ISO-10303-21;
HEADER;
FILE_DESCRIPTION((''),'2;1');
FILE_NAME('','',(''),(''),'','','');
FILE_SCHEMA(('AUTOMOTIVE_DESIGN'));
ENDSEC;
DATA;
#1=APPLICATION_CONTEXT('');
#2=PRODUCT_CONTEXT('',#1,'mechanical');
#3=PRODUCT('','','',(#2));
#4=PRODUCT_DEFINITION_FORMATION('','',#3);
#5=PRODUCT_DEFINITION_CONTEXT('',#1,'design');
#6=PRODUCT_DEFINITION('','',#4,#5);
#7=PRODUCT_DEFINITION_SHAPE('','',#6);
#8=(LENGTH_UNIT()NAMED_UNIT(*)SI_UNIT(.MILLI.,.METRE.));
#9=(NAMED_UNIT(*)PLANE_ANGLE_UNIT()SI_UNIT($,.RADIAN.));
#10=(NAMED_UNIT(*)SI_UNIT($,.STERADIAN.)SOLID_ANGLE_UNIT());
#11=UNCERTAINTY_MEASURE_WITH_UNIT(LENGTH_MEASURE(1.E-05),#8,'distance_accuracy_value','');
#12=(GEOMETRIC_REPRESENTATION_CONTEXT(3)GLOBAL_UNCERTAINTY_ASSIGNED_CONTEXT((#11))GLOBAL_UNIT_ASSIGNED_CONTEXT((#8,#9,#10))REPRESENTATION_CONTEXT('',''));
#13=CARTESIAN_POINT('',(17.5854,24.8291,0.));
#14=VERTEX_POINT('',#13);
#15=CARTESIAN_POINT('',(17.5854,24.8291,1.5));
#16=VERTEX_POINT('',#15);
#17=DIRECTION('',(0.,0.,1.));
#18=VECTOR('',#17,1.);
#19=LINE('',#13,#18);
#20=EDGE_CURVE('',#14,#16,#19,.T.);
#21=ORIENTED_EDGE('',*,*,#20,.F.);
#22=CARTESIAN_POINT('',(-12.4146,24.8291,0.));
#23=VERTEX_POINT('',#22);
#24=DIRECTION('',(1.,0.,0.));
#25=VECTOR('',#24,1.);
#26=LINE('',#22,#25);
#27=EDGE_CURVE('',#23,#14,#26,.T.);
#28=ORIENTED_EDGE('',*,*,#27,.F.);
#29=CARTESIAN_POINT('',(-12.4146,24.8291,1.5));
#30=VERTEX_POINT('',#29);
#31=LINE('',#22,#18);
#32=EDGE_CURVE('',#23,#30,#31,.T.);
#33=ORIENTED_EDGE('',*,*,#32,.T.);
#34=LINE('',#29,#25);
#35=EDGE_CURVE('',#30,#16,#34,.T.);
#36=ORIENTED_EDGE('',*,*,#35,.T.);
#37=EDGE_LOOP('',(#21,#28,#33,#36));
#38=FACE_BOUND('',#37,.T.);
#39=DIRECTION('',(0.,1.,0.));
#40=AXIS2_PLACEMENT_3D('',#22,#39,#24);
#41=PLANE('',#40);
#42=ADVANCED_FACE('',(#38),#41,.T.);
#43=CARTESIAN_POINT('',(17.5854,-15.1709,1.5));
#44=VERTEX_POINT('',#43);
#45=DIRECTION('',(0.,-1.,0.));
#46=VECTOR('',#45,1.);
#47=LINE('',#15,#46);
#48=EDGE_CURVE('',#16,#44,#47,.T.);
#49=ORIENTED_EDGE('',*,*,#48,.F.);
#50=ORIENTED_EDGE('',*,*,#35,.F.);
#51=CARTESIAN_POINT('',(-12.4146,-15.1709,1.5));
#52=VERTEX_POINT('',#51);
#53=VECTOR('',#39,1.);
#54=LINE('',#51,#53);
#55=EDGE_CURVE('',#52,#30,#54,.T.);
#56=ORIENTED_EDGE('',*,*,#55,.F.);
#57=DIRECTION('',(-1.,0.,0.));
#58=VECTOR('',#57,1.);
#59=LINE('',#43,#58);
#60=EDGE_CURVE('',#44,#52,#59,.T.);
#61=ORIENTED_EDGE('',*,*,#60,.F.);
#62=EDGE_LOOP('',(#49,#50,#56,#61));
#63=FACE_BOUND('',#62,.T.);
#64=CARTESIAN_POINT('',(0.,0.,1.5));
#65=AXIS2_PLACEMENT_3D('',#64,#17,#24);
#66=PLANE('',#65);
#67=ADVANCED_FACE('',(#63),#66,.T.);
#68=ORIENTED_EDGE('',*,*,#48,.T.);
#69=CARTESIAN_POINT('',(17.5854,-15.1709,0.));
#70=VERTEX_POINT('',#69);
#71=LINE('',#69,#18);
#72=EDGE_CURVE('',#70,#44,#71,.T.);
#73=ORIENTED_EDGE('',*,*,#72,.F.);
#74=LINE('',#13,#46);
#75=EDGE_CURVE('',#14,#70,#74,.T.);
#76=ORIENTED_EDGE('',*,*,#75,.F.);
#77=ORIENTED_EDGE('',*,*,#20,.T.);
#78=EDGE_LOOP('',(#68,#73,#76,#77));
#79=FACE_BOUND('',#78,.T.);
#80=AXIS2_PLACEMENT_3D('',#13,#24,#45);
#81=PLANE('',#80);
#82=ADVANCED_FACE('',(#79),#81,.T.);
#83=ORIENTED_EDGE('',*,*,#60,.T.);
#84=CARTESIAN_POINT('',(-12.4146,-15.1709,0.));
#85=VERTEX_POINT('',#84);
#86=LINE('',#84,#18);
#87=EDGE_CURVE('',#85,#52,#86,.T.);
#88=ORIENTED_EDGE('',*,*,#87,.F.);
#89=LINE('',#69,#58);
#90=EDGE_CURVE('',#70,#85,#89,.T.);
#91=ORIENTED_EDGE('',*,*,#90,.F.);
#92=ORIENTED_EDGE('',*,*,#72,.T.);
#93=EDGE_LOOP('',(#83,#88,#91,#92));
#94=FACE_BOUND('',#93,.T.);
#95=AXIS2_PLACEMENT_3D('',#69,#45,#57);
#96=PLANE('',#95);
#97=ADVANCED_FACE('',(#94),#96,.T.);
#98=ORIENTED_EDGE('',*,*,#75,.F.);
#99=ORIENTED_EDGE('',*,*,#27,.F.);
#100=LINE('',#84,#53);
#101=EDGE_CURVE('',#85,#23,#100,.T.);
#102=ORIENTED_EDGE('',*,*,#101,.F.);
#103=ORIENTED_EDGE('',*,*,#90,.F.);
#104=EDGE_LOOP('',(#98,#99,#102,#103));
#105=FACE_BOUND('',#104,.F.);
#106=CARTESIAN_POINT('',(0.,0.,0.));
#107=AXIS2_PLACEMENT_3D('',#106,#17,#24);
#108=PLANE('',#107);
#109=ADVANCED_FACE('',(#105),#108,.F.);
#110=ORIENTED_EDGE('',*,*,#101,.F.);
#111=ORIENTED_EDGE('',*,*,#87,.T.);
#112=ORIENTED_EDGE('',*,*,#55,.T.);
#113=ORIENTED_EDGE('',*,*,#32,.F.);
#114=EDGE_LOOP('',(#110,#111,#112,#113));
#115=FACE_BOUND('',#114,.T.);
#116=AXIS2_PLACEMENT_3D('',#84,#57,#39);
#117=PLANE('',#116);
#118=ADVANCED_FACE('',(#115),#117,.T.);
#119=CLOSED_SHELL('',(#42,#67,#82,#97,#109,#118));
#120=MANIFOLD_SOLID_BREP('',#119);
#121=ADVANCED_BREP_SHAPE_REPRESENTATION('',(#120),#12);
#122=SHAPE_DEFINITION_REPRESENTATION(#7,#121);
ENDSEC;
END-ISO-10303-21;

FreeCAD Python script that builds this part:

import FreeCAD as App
import Part
import Sketcher


def add_polygon(sketch, points):
    """Adds a closed chain of lines whose ends are joined by coincident constraints."""
    first, n = sketch.GeometryCount, len(points)
    for a, b in zip(points, points[1:] + points[:1]):
        sketch.addGeometry(Part.LineSegment(App.Vector(*a, 0), App.Vector(*b, 0)), False)
    for i in range(n):
        sketch.addConstraint(Sketcher.Constraint("Coincident", first + i, 2, first + (i + 1) % n, 1))

doc = App.newDocument("Part")
body = doc.addObject("PartDesign::Body", "Body")

sketch1 = body.newObject("Sketcher::SketchObject", "Sketch")
sketch1.AttachmentSupport = (doc.getObject("XY_Plane"), [""])
sketch1.MapMode = "FlatFace"
add_polygon(sketch1, [(17.5854, 24.8291), (-12.4146, 24.8291), (-12.4146, -15.1709), (17.5854, -15.1709)])
sketch1.addConstraint([
    Sketcher.Constraint("Horizontal", 0),
    Sketcher.Constraint("Vertical", 1),
    Sketcher.Constraint("Horizontal", 2),
    Sketcher.Constraint("Vertical", 3),
    Sketcher.Constraint("DistanceX", 0, 2, 0, 1, 30.0),
    Sketcher.Constraint("DistanceY", 1, 2, 1, 1, 40.0),
    Sketcher.Constraint("DistanceY", -1, 1, 0, 2, 24.829),
    Sketcher.Constraint("DistanceX", 0, 2, -1, 1, 12.4146),
])
pad1 = body.newObject("PartDesign::Pad", "Pad")
pad1.Profile = sketch1
pad1.Length = 1.5

doc.recompute()
